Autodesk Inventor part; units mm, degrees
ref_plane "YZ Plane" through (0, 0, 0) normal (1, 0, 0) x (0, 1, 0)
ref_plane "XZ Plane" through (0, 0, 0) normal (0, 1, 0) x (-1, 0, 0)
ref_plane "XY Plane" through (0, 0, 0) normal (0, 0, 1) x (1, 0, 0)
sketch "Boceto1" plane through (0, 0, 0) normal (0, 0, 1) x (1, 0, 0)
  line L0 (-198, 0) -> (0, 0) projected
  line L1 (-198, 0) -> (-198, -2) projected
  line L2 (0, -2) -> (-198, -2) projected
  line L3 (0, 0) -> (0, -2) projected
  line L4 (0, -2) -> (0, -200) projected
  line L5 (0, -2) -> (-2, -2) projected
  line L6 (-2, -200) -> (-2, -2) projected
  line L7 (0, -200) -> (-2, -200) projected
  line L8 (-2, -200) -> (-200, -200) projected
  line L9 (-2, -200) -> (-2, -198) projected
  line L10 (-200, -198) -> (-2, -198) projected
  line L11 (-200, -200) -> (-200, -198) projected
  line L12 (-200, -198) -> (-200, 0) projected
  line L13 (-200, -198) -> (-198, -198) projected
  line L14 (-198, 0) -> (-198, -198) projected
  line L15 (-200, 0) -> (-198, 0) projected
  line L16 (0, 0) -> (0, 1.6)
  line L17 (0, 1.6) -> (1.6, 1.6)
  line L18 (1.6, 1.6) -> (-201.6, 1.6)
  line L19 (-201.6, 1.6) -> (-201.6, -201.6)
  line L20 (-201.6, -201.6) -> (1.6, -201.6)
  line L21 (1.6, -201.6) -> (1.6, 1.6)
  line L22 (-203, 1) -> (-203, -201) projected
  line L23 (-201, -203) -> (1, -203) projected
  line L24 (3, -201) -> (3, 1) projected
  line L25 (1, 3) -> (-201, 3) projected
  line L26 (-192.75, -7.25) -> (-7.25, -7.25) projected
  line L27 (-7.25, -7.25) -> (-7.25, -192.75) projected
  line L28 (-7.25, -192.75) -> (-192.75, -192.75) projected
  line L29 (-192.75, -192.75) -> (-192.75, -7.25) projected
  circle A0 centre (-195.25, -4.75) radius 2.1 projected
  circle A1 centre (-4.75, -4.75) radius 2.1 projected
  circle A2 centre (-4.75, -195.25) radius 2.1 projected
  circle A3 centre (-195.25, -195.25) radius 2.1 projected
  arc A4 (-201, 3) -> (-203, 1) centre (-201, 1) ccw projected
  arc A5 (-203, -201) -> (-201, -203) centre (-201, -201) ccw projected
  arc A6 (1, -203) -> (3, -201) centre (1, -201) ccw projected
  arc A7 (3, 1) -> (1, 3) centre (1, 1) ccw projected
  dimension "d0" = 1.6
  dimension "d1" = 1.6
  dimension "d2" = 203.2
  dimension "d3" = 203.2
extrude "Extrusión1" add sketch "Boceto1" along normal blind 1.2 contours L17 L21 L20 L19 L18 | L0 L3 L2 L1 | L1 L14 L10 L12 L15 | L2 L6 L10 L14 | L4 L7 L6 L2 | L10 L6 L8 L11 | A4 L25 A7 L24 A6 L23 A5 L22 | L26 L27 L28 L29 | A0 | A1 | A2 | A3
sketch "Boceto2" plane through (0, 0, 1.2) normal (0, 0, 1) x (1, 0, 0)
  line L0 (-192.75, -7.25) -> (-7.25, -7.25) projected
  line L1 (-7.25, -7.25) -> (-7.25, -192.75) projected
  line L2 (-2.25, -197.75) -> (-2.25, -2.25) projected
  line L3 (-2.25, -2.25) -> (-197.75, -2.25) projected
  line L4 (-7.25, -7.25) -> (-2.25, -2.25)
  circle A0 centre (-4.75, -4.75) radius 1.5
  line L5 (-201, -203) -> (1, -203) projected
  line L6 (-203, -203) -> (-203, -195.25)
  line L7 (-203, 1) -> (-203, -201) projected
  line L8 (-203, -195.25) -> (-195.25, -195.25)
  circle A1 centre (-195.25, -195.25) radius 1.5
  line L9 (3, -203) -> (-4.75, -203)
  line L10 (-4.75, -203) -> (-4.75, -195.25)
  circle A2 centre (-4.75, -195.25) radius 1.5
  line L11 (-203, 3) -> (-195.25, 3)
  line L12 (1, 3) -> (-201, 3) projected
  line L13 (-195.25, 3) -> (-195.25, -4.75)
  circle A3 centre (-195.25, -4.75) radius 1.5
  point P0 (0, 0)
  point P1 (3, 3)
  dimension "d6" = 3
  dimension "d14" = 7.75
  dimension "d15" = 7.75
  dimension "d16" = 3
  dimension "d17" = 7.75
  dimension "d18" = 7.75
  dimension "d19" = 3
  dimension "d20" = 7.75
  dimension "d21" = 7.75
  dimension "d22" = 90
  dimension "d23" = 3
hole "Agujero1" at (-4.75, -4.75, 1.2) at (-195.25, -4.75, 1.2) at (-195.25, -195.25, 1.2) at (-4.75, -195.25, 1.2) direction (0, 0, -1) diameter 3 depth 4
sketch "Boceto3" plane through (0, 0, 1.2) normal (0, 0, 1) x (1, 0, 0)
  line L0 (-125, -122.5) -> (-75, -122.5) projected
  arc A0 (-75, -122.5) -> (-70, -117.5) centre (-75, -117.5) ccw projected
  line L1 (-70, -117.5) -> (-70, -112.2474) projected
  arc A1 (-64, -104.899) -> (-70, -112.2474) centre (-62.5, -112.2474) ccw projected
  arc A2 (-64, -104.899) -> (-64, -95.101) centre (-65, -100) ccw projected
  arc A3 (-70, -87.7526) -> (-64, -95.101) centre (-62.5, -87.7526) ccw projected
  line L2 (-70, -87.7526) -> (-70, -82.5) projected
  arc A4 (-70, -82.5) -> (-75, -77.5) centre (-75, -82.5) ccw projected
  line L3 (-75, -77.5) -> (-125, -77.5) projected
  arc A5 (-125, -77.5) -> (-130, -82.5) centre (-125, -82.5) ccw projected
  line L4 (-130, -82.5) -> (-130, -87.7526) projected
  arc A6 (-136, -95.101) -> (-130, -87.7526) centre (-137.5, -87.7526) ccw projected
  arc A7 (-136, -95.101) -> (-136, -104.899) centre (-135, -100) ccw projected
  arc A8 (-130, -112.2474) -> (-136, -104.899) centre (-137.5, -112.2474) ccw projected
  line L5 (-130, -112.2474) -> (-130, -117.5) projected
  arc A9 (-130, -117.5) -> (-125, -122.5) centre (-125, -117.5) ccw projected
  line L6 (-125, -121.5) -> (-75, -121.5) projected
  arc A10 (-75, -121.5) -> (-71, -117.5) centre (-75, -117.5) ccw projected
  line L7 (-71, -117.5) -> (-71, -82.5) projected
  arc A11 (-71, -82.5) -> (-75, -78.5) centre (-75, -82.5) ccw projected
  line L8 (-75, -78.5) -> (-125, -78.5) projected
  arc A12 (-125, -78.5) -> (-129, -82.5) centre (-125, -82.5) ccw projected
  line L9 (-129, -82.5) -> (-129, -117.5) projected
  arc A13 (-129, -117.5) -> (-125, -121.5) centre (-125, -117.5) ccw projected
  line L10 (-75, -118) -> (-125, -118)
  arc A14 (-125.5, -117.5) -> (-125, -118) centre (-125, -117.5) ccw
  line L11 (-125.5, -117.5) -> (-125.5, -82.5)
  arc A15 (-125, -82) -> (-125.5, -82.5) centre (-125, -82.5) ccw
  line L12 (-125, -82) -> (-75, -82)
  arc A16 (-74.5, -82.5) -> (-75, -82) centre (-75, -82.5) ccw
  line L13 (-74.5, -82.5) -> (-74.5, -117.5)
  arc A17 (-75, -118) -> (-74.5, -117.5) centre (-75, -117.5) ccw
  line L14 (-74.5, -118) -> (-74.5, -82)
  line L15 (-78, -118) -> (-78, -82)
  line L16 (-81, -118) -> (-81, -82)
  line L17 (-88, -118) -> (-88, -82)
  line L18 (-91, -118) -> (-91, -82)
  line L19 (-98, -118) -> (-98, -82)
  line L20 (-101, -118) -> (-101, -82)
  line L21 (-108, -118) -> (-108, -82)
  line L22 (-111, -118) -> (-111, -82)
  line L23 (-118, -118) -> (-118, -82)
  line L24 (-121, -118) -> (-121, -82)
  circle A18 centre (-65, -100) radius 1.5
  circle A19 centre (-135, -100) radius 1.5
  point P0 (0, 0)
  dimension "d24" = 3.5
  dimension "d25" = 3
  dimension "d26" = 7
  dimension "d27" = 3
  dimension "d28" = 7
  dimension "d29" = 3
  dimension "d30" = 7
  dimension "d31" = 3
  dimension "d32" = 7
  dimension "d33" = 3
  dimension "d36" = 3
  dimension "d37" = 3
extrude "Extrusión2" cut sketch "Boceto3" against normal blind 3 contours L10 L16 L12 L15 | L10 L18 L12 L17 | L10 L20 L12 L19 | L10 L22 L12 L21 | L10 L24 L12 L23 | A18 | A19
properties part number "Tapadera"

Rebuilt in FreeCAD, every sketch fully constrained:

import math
import FreeCAD as App
import Part
import Sketcher
Q = App.Units.Quantity

doc = App.newDocument("Part")
params = doc.addObject("Spreadsheet::Sheet", "Params")
for row, (alias, value) in enumerate([
    ("sketch1_radius", "2 mm"),
    ("sketch1_width", "202 mm"),
    ("pad1_length", "1.2 mm"),
    ("sketch2_diameter", "3 mm"),
    ("hole_diameter", "3 mm"),
    ("hole_depth", "4 mm"),
    ("sketch3_diameter", "3 mm"),
    ("sketch3_width", "3 mm"),
    ("sketch3_height", "36 mm"),
    ("pocket1_length", "3 mm"),
], start=1):
    params.set(f"A{row}", alias)
    params.set(f"B{row}", "=" + value)
    params.setAlias(f"B{row}", alias)

body = doc.addObject("PartDesign::Body", "Body")

# Sketch on XY plane
sketch1 = body.newObject("Sketcher::SketchObject", "Sketch")
sketch1.AttachmentSupport = (doc.getObject("XY_Plane"), [""])
sketch1.MapMode = "FlatFace"
sketch1.addGeometry([
    Part.ArcOfCircle(Part.Circle(App.Vector(-201, 1, 0), App.Vector(0, 0, 1), 2), math.radians(90), math.radians(180)),  # 0
    Part.LineSegment(App.Vector(-203, 1, 0), App.Vector(-203, -201, 0)),  # 1
    Part.ArcOfCircle(Part.Circle(App.Vector(-201, -201, 0), App.Vector(0, 0, 1), 2), math.radians(180), math.radians(270)),  # 2
    Part.LineSegment(App.Vector(-201, -203, 0), App.Vector(1, -203, 0)),  # 3
    Part.ArcOfCircle(Part.Circle(App.Vector(1, -201, 0), App.Vector(0, 0, 1), 2), math.radians(-90), math.radians(0)),  # 4
    Part.LineSegment(App.Vector(3, -201, 0), App.Vector(3, 1, 0)),  # 5
    Part.ArcOfCircle(Part.Circle(App.Vector(1, 1, 0), App.Vector(0, 0, 1), 2), math.radians(0), math.radians(90)),  # 6
    Part.LineSegment(App.Vector(1, 3, 0), App.Vector(-201, 3, 0)),  # 7
], False)
sketch1.addConstraint([
    Sketcher.Constraint("Tangent", 0, 2, 1, 1),
    Sketcher.Constraint("Tangent", 1, 2, 2, 1),
    Sketcher.Constraint("Tangent", 2, 2, 3, 1),
    Sketcher.Constraint("Tangent", 3, 2, 4, 1),
    Sketcher.Constraint("Tangent", 4, 2, 5, 1),
    Sketcher.Constraint("Tangent", 5, 2, 6, 1),
    Sketcher.Constraint("Tangent", 6, 2, 7, 1),
    Sketcher.Constraint("Tangent", 7, 2, 0, 1),
    Sketcher.Constraint("Vertical", 1),
    Sketcher.Constraint("Horizontal", 3),
    Sketcher.Constraint("Vertical", 5),
    Sketcher.Constraint("Horizontal", 7),
    Sketcher.Constraint("Equal", 0, 2),
    Sketcher.Constraint("Equal", 2, 4),
    Sketcher.Constraint("Equal", 4, 6),
    Sketcher.Constraint("Equal", 7, 1),
    Sketcher.Constraint("Radius", 0, Q("2 mm")),
    Sketcher.Constraint("DistanceX", 3, 1, 3, 2, Q("202 mm")),
    Sketcher.Constraint("DistanceX", 0, 3, -1, 1, Q("201 mm")),
    Sketcher.Constraint("DistanceY", -1, 1, 0, 3, Q("1 mm")),
])
sketch1.setExpression("Constraints[16]", "Params.sketch1_radius")
sketch1.setExpression("Constraints[17]", "Params.sketch1_width")
pad1 = body.newObject("PartDesign::Pad", "Pad")
pad1.Profile = sketch1
pad1.setExpression("Length", "Params.pad1_length")

# Sketch on XY plane
sketch2 = body.newObject("Sketcher::SketchObject", "Sketch001")
sketch2.AttachmentSupport = (doc.getObject("XY_Plane"), [""])
sketch2.MapMode = "FlatFace"
sketch2.AttachmentOffset = App.Placement(App.Vector(0, 0, 1.2), App.Rotation())
sketch2.addGeometry([
    Part.Circle(App.Vector(-4.75, -4.75, 0), App.Vector(0, 0, 1), 1.5),
    Part.Circle(App.Vector(-195.25, -4.75, 0), App.Vector(0, 0, 1), 1.5),
    Part.Circle(App.Vector(-195.25, -195.25, 0), App.Vector(0, 0, 1), 1.5),
    Part.Circle(App.Vector(-4.75, -195.25, 0), App.Vector(0, 0, 1), 1.5),
], False)
sketch2.addConstraint([
    Sketcher.Constraint("Equal", 0, 1),
    Sketcher.Constraint("Equal", 1, 2),
    Sketcher.Constraint("Equal", 2, 3),
    Sketcher.Constraint("Horizontal", 0, 3, 1, 3),
    Sketcher.Constraint("Horizontal", 2, 3, 3, 3),
    Sketcher.Constraint("Vertical", 1, 3, 2, 3),
    Sketcher.Constraint("Vertical", 0, 3, 3, 3),
    Sketcher.Constraint("Diameter", 0, Q("3 mm")),
    Sketcher.Constraint("DistanceX", 1, 3, 0, 3, Q("190.5 mm")),
    Sketcher.Constraint("DistanceY", 2, 3, 1, 3, Q("190.5 mm")),
    Sketcher.Constraint("DistanceX", 0, 3, -1, 1, Q("4.75 mm")),
    Sketcher.Constraint("DistanceY", 0, 3, -1, 1, Q("4.75 mm")),
])
sketch2.setExpression("Constraints[7]", "Params.sketch2_diameter")
doc.recompute()
hole = body.newObject("PartDesign::Hole", "Hole")
hole.Profile = sketch2
hole.ThreadType = "None"
hole.setExpression("Diameter", "Params.hole_diameter")
hole.DepthType = "Dimension"
hole.setExpression("Depth", "Params.hole_depth")
hole.DrillPoint = "Flat"

# Sketch on XY plane
sketch3 = body.newObject("Sketcher::SketchObject", "Sketch002")
sketch3.AttachmentSupport = (doc.getObject("XY_Plane"), [""])
sketch3.MapMode = "FlatFace"
sketch3.AttachmentOffset = App.Placement(App.Vector(0, 0, 1.2), App.Rotation())
sketch3.addGeometry([
    Part.LineSegment(App.Vector(-81, -118, 0), App.Vector(-78, -118, 0)),  # 0
    Part.LineSegment(App.Vector(-78, -118, 0), App.Vector(-78, -82, 0)),  # 1
    Part.LineSegment(App.Vector(-78, -82, 0), App.Vector(-81, -82, 0)),  # 2
    Part.LineSegment(App.Vector(-81, -82, 0), App.Vector(-81, -118, 0)),  # 3
    Part.LineSegment(App.Vector(-91, -118, 0), App.Vector(-88, -118, 0)),  # 4
    Part.LineSegment(App.Vector(-88, -118, 0), App.Vector(-88, -82, 0)),  # 5
    Part.LineSegment(App.Vector(-88, -82, 0), App.Vector(-91, -82, 0)),  # 6
    Part.LineSegment(App.Vector(-91, -82, 0), App.Vector(-91, -118, 0)),  # 7
    Part.LineSegment(App.Vector(-101, -118, 0), App.Vector(-98, -118, 0)),  # 8
    Part.LineSegment(App.Vector(-98, -118, 0), App.Vector(-98, -82, 0)),  # 9
    Part.LineSegment(App.Vector(-98, -82, 0), App.Vector(-101, -82, 0)),  # 10
    Part.LineSegment(App.Vector(-101, -82, 0), App.Vector(-101, -118, 0)),  # 11
    Part.LineSegment(App.Vector(-111, -118, 0), App.Vector(-108, -118, 0)),  # 12
    Part.LineSegment(App.Vector(-108, -118, 0), App.Vector(-108, -82, 0)),  # 13
    Part.LineSegment(App.Vector(-108, -82, 0), App.Vector(-111, -82, 0)),  # 14
    Part.LineSegment(App.Vector(-111, -82, 0), App.Vector(-111, -118, 0)),  # 15
    Part.LineSegment(App.Vector(-121, -118, 0), App.Vector(-118, -118, 0)),  # 16
    Part.LineSegment(App.Vector(-118, -118, 0), App.Vector(-118, -82, 0)),  # 17
    Part.LineSegment(App.Vector(-118, -82, 0), App.Vector(-121, -82, 0)),  # 18
    Part.LineSegment(App.Vector(-121, -82, 0), App.Vector(-121, -118, 0)),  # 19
    Part.Circle(App.Vector(-65, -100, 0), App.Vector(0, 0, 1), 1.5),  # 20
    Part.Circle(App.Vector(-135, -100, 0), App.Vector(0, 0, 1), 1.5),  # 21
], False)
sketch3.addConstraint([
    Sketcher.Constraint("Coincident", 0, 2, 1, 1),
    Sketcher.Constraint("Coincident", 1, 2, 2, 1),
    Sketcher.Constraint("Coincident", 2, 2, 3, 1),
    Sketcher.Constraint("Coincident", 3, 2, 0, 1),
    Sketcher.Constraint("Coincident", 4, 2, 5, 1),
    Sketcher.Constraint("Coincident", 5, 2, 6, 1),
    Sketcher.Constraint("Coincident", 6, 2, 7, 1),
    Sketcher.Constraint("Coincident", 7, 2, 4, 1),
    Sketcher.Constraint("Coincident", 8, 2, 9, 1),
    Sketcher.Constraint("Coincident", 9, 2, 10, 1),
    Sketcher.Constraint("Coincident", 10, 2, 11, 1),
    Sketcher.Constraint("Coincident", 11, 2, 8, 1),
    Sketcher.Constraint("Coincident", 12, 2, 13, 1),
    Sketcher.Constraint("Coincident", 13, 2, 14, 1),
    Sketcher.Constraint("Coincident", 14, 2, 15, 1),
    Sketcher.Constraint("Coincident", 15, 2, 12, 1),
    Sketcher.Constraint("Coincident", 16, 2, 17, 1),
    Sketcher.Constraint("Coincident", 17, 2, 18, 1),
    Sketcher.Constraint("Coincident", 18, 2, 19, 1),
    Sketcher.Constraint("Coincident", 19, 2, 16, 1),
    Sketcher.Constraint("Horizontal", 0),
    Sketcher.Constraint("Vertical", 1),
    Sketcher.Constraint("Horizontal", 2),
    Sketcher.Constraint("Vertical", 3),
    Sketcher.Constraint("Horizontal", 4),
    Sketcher.Constraint("Vertical", 5),
    Sketcher.Constraint("Horizontal", 6),
    Sketcher.Constraint("Vertical", 7),
    Sketcher.Constraint("Horizontal", 8),
    Sketcher.Constraint("Vertical", 9),
    Sketcher.Constraint("Horizontal", 10),
    Sketcher.Constraint("Vertical", 11),
    Sketcher.Constraint("Horizontal", 12),
    Sketcher.Constraint("Vertical", 13),
    Sketcher.Constraint("Horizontal", 14),
    Sketcher.Constraint("Vertical", 15),
    Sketcher.Constraint("Horizontal", 16),
    Sketcher.Constraint("Vertical", 17),
    Sketcher.Constraint("Horizontal", 18),
    Sketcher.Constraint("Vertical", 19),
    Sketcher.Constraint("Equal", 20, 21),
    Sketcher.Constraint("Horizontal", 20, 3, 21, 3),
    Sketcher.Constraint("Horizontal", 3, 2, 4, 2),
    Sketcher.Constraint("Horizontal", 2, 2, 5, 2),
    Sketcher.Constraint("Horizontal", 7, 2, 8, 2),
    Sketcher.Constraint("Horizontal", 6, 2, 9, 2),
    Sketcher.Constraint("Horizontal", 11, 2, 12, 2),
    Sketcher.Constraint("Horizontal", 10, 2, 13, 2),
    Sketcher.Constraint("Horizontal", 15, 2, 16, 2),
    Sketcher.Constraint("Horizontal", 14, 2, 17, 2),
    Sketcher.Constraint("Equal", 2, 4),
    Sketcher.Constraint("Equal", 6, 8),
    Sketcher.Constraint("Equal", 10, 12),
    Sketcher.Constraint("Equal", 14, 16),
    Sketcher.Constraint("Diameter", 20, Q("3 mm")),
    Sketcher.Constraint("DistanceX", 0, 1, 0, 2, Q("3 mm")),
    Sketcher.Constraint("DistanceX", 4, 2, 3, 2, Q("7 mm")),
    Sketcher.Constraint("DistanceX", 8, 2, 7, 2, Q("7 mm")),
    Sketcher.Constraint("DistanceX", 12, 2, 11, 2, Q("7 mm")),
    Sketcher.Constraint("DistanceX", 16, 2, 15, 2, Q("7 mm")),
    Sketcher.Constraint("DistanceY", 1, 1, 1, 2, Q("36 mm")),
    Sketcher.Constraint("DistanceX", 20, 3, -1, 1, Q("65 mm")),
    Sketcher.Constraint("DistanceY", 20, 3, -1, 1, Q("100 mm")),
    Sketcher.Constraint("DistanceX", 21, 3, -1, 1, Q("135 mm")),
    Sketcher.Constraint("DistanceX", 0, 2, -1, 1, Q("78 mm")),
    Sketcher.Constraint("DistanceY", 0, 2, -1, 1, Q("118 mm")),
])
sketch3.setExpression("Constraints[54]", "Params.sketch3_diameter")
sketch3.setExpression("Constraints[55]", "Params.sketch3_width")
sketch3.setExpression("Constraints[60]", "Params.sketch3_height")
pocket1 = body.newObject("PartDesign::Pocket", "Pocket")
pocket1.Profile = sketch3
pocket1.setExpression("Length", "Params.pocket1_length")

doc.recompute()
